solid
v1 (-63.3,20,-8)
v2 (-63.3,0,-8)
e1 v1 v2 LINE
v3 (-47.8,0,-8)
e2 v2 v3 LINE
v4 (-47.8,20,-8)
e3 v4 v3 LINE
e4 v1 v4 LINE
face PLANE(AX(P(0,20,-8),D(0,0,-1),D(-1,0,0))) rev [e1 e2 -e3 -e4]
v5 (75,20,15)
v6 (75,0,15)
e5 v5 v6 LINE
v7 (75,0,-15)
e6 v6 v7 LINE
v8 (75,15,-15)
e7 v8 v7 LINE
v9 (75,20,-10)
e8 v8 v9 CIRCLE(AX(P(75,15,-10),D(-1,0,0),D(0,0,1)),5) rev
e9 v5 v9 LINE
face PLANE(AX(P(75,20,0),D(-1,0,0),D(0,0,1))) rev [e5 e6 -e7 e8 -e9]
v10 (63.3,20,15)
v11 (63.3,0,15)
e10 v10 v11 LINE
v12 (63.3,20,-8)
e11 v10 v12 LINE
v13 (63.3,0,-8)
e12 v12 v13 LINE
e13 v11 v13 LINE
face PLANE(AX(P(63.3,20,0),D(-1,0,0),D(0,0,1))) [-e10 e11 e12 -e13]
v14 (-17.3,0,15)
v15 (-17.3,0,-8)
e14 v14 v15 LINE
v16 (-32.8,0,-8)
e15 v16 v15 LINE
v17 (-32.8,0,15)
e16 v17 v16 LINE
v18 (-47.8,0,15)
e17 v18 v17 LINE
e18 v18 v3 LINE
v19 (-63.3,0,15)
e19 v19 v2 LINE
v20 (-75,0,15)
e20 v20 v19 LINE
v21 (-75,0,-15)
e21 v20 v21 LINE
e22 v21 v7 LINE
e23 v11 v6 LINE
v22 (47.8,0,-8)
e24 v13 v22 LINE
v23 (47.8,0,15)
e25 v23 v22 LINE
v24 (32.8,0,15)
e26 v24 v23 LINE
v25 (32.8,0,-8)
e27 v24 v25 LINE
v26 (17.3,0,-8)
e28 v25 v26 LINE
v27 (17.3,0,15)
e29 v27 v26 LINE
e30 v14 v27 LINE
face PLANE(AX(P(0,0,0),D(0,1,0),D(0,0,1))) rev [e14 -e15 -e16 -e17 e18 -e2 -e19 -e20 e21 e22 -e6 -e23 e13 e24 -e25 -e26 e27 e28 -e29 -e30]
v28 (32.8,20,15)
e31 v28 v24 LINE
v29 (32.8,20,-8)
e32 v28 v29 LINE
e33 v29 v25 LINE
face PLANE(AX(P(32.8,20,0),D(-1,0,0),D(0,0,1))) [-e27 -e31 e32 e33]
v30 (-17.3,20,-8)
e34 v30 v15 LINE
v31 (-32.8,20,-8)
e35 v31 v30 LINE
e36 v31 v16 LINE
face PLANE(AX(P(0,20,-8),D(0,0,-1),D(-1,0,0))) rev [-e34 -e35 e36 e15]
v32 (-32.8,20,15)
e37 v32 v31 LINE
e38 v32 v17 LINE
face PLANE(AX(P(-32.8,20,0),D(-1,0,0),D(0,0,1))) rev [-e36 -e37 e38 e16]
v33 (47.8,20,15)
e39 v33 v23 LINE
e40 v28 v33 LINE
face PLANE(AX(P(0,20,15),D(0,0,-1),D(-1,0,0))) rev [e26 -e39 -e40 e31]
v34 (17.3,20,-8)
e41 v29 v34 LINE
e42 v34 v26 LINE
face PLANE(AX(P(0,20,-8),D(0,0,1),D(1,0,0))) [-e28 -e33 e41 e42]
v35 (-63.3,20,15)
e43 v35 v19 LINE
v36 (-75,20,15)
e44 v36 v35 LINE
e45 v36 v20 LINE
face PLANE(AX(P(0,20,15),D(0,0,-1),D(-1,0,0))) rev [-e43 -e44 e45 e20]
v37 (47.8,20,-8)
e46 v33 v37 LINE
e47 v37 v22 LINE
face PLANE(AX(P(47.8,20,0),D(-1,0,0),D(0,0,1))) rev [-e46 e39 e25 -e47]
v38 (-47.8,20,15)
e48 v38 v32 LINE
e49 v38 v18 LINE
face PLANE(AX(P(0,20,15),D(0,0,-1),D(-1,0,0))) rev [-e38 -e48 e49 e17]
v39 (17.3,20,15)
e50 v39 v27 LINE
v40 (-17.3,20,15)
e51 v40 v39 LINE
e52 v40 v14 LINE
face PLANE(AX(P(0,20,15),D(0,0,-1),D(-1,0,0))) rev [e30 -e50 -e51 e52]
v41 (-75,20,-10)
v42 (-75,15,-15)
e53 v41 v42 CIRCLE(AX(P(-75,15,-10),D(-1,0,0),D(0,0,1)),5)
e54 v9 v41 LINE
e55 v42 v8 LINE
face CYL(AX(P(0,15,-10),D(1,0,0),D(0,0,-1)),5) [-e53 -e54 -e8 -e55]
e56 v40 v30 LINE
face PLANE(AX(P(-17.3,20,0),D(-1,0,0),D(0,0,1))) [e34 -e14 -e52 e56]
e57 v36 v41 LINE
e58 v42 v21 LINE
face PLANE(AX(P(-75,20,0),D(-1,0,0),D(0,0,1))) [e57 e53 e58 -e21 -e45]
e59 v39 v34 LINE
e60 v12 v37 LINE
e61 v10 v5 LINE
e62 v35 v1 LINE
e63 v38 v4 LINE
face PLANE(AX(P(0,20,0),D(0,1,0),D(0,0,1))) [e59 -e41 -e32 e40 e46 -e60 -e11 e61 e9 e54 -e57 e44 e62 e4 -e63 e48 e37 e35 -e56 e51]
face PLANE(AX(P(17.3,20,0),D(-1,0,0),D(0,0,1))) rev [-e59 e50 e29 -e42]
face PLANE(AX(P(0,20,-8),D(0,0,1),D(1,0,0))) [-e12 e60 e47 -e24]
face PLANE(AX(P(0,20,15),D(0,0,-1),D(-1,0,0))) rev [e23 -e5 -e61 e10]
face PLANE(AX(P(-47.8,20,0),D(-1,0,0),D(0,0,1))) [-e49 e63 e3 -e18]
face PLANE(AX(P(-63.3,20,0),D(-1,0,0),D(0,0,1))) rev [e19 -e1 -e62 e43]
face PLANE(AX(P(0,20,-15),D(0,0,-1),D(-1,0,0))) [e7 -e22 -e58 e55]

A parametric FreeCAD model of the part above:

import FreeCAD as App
import Part
import Sketcher

V = App.Vector
Q = App.Units.Quantity


def edges_at(feature, points):
    """Names of the edges that pass closest to the given points."""
    edges = feature.Shape.Edges
    near = lambda p: min(range(len(edges)), key=lambda i: edges[i].distToShape(Part.Vertex(*p))[0])
    return sorted({f"Edge{near(p) + 1}" for p in points})


def add_polygon(sketch, points):
    """Adds a closed chain of lines whose ends are joined by coincident constraints."""
    first, n = sketch.GeometryCount, len(points)
    for a, b in zip(points, points[1:] + points[:1]):
        sketch.addGeometry(Part.LineSegment(App.Vector(*a, 0), App.Vector(*b, 0)), False)
    for i in range(n):
        sketch.addConstraint(Sketcher.Constraint("Coincident", first + i, 2, first + (i + 1) % n, 1))

doc = App.newDocument("Part")
params = doc.addObject("Spreadsheet::Sheet", "Params")
for row, (alias, value) in enumerate([
    ("sketch1_width", "15 mm"),
    ("sketch1_width2", "150 mm"),
    ("sketch1_height", "30 mm"),
    ("sketch1_height2", "23 mm"),
    ("sketch1_width3", "11.7 mm"),
    ("pad1_length", "20 mm"),
    ("fillet_radius", "5 mm"),
], start=1):
    params.set(f"A{row}", alias)
    params.set(f"B{row}", "=" + value)
    params.setAlias(f"B{row}", alias)

body = doc.addObject("PartDesign::Body", "Body")

sketch1 = body.newObject("Sketcher::SketchObject", "Sketch")
sketch1.AttachmentSupport = (doc.getObject("XZ_Plane"), [""])
sketch1.MapMode = "FlatFace"
add_polygon(sketch1, [(-75, -15), (-75, 15), (-63, 15), (-63, -8), (-48, -8), (-48, 15), (-33, 15), (-33, -8), (-17, -8), (-17, 15), (17, 15), (17, -8), (33, -8), (33, 15), (48, 15), (48, -8), (63, -8), (63, 15), (75, 15), (75, -15)])
sketch1.addConstraint(Sketcher.Constraint("Vertical", 0))
sketch1.addConstraint(Sketcher.Constraint("Horizontal", 1))
sketch1.addConstraint(Sketcher.Constraint("Vertical", 2))
sketch1.addConstraint(Sketcher.Constraint("Horizontal", 3))
sketch1.addConstraint(Sketcher.Constraint("Vertical", 4))
sketch1.addConstraint(Sketcher.Constraint("Horizontal", 5))
sketch1.addConstraint(Sketcher.Constraint("Vertical", 6))
sketch1.addConstraint(Sketcher.Constraint("Horizontal", 7))
sketch1.addConstraint(Sketcher.Constraint("Vertical", 8))
sketch1.addConstraint(Sketcher.Constraint("Horizontal", 9))
sketch1.addConstraint(Sketcher.Constraint("Vertical", 10))
sketch1.addConstraint(Sketcher.Constraint("Horizontal", 11))
sketch1.addConstraint(Sketcher.Constraint("Vertical", 12))
sketch1.addConstraint(Sketcher.Constraint("Horizontal", 13))
sketch1.addConstraint(Sketcher.Constraint("Vertical", 14))
sketch1.addConstraint(Sketcher.Constraint("Horizontal", 15))
sketch1.addConstraint(Sketcher.Constraint("Vertical", 16))
sketch1.addConstraint(Sketcher.Constraint("Horizontal", 17))
sketch1.addConstraint(Sketcher.Constraint("Vertical", 18))
sketch1.addConstraint(Sketcher.Constraint("Horizontal", 19))
sketch1.addConstraint(Sketcher.Constraint("Symmetric", 0, 2, 18, 2, -1, 1))
sketch1.addConstraint(Sketcher.Constraint("Symmetric", 7, 2, 10, 2, -2))
sketch1.addConstraint(Sketcher.Constraint("Symmetric", 5, 2, 12, 2, -2))
sketch1.addConstraint(Sketcher.Constraint("Symmetric", 3, 2, 14, 2, -2))
sketch1.addConstraint(Sketcher.Constraint("Symmetric", 1, 2, 16, 2, -2))
sketch1.addConstraint(Sketcher.Constraint("Horizontal", 1, 2, 4, 2))
sketch1.addConstraint(Sketcher.Constraint("Horizontal", 3, 2, 6, 2))
sketch1.addConstraint(Sketcher.Constraint("Horizontal", 5, 2, 8, 2))
sketch1.addConstraint(Sketcher.Constraint("Equal", 3, 7))
sketch1.addConstraint(Sketcher.Constraint("DistanceX", 5, 1, 5, 2, Q("15 mm")))
sketch1.addConstraint(Sketcher.Constraint("DistanceX", 19, 2, 19, 1, Q("150 mm")))
sketch1.addConstraint(Sketcher.Constraint("DistanceY", 0, 1, 0, 2, Q("30 mm")))
sketch1.addConstraint(Sketcher.Constraint("DistanceY", 2, 2, 2, 1, Q("23 mm")))
sketch1.addConstraint(Sketcher.Constraint("DistanceX", 1, 1, 1, 2, Q("11.7 mm")))
sketch1.addConstraint(Sketcher.Constraint("DistanceX", 3, 1, 3, 2, Q("15.5 mm")))
sketch1.setExpression("Constraints[49]", "Params.sketch1_width")
sketch1.setExpression("Constraints[50]", "Params.sketch1_width2")
sketch1.setExpression("Constraints[51]", "Params.sketch1_height")
sketch1.setExpression("Constraints[52]", "Params.sketch1_height2")
sketch1.setExpression("Constraints[53]", "Params.sketch1_width3")
pad1 = body.newObject("PartDesign::Pad", "Pad")
pad1.Profile = sketch1
pad1.setExpression("Length", "Params.pad1_length")
pad1.Reversed = True
doc.recompute()

fillet = body.newObject("PartDesign::Fillet", "Fillet")
fillet.Base = (pad1, edges_at(pad1, [(0, 20, -15)]))
fillet.setExpression("Radius", "Params.fillet_radius")

doc.recompute()
